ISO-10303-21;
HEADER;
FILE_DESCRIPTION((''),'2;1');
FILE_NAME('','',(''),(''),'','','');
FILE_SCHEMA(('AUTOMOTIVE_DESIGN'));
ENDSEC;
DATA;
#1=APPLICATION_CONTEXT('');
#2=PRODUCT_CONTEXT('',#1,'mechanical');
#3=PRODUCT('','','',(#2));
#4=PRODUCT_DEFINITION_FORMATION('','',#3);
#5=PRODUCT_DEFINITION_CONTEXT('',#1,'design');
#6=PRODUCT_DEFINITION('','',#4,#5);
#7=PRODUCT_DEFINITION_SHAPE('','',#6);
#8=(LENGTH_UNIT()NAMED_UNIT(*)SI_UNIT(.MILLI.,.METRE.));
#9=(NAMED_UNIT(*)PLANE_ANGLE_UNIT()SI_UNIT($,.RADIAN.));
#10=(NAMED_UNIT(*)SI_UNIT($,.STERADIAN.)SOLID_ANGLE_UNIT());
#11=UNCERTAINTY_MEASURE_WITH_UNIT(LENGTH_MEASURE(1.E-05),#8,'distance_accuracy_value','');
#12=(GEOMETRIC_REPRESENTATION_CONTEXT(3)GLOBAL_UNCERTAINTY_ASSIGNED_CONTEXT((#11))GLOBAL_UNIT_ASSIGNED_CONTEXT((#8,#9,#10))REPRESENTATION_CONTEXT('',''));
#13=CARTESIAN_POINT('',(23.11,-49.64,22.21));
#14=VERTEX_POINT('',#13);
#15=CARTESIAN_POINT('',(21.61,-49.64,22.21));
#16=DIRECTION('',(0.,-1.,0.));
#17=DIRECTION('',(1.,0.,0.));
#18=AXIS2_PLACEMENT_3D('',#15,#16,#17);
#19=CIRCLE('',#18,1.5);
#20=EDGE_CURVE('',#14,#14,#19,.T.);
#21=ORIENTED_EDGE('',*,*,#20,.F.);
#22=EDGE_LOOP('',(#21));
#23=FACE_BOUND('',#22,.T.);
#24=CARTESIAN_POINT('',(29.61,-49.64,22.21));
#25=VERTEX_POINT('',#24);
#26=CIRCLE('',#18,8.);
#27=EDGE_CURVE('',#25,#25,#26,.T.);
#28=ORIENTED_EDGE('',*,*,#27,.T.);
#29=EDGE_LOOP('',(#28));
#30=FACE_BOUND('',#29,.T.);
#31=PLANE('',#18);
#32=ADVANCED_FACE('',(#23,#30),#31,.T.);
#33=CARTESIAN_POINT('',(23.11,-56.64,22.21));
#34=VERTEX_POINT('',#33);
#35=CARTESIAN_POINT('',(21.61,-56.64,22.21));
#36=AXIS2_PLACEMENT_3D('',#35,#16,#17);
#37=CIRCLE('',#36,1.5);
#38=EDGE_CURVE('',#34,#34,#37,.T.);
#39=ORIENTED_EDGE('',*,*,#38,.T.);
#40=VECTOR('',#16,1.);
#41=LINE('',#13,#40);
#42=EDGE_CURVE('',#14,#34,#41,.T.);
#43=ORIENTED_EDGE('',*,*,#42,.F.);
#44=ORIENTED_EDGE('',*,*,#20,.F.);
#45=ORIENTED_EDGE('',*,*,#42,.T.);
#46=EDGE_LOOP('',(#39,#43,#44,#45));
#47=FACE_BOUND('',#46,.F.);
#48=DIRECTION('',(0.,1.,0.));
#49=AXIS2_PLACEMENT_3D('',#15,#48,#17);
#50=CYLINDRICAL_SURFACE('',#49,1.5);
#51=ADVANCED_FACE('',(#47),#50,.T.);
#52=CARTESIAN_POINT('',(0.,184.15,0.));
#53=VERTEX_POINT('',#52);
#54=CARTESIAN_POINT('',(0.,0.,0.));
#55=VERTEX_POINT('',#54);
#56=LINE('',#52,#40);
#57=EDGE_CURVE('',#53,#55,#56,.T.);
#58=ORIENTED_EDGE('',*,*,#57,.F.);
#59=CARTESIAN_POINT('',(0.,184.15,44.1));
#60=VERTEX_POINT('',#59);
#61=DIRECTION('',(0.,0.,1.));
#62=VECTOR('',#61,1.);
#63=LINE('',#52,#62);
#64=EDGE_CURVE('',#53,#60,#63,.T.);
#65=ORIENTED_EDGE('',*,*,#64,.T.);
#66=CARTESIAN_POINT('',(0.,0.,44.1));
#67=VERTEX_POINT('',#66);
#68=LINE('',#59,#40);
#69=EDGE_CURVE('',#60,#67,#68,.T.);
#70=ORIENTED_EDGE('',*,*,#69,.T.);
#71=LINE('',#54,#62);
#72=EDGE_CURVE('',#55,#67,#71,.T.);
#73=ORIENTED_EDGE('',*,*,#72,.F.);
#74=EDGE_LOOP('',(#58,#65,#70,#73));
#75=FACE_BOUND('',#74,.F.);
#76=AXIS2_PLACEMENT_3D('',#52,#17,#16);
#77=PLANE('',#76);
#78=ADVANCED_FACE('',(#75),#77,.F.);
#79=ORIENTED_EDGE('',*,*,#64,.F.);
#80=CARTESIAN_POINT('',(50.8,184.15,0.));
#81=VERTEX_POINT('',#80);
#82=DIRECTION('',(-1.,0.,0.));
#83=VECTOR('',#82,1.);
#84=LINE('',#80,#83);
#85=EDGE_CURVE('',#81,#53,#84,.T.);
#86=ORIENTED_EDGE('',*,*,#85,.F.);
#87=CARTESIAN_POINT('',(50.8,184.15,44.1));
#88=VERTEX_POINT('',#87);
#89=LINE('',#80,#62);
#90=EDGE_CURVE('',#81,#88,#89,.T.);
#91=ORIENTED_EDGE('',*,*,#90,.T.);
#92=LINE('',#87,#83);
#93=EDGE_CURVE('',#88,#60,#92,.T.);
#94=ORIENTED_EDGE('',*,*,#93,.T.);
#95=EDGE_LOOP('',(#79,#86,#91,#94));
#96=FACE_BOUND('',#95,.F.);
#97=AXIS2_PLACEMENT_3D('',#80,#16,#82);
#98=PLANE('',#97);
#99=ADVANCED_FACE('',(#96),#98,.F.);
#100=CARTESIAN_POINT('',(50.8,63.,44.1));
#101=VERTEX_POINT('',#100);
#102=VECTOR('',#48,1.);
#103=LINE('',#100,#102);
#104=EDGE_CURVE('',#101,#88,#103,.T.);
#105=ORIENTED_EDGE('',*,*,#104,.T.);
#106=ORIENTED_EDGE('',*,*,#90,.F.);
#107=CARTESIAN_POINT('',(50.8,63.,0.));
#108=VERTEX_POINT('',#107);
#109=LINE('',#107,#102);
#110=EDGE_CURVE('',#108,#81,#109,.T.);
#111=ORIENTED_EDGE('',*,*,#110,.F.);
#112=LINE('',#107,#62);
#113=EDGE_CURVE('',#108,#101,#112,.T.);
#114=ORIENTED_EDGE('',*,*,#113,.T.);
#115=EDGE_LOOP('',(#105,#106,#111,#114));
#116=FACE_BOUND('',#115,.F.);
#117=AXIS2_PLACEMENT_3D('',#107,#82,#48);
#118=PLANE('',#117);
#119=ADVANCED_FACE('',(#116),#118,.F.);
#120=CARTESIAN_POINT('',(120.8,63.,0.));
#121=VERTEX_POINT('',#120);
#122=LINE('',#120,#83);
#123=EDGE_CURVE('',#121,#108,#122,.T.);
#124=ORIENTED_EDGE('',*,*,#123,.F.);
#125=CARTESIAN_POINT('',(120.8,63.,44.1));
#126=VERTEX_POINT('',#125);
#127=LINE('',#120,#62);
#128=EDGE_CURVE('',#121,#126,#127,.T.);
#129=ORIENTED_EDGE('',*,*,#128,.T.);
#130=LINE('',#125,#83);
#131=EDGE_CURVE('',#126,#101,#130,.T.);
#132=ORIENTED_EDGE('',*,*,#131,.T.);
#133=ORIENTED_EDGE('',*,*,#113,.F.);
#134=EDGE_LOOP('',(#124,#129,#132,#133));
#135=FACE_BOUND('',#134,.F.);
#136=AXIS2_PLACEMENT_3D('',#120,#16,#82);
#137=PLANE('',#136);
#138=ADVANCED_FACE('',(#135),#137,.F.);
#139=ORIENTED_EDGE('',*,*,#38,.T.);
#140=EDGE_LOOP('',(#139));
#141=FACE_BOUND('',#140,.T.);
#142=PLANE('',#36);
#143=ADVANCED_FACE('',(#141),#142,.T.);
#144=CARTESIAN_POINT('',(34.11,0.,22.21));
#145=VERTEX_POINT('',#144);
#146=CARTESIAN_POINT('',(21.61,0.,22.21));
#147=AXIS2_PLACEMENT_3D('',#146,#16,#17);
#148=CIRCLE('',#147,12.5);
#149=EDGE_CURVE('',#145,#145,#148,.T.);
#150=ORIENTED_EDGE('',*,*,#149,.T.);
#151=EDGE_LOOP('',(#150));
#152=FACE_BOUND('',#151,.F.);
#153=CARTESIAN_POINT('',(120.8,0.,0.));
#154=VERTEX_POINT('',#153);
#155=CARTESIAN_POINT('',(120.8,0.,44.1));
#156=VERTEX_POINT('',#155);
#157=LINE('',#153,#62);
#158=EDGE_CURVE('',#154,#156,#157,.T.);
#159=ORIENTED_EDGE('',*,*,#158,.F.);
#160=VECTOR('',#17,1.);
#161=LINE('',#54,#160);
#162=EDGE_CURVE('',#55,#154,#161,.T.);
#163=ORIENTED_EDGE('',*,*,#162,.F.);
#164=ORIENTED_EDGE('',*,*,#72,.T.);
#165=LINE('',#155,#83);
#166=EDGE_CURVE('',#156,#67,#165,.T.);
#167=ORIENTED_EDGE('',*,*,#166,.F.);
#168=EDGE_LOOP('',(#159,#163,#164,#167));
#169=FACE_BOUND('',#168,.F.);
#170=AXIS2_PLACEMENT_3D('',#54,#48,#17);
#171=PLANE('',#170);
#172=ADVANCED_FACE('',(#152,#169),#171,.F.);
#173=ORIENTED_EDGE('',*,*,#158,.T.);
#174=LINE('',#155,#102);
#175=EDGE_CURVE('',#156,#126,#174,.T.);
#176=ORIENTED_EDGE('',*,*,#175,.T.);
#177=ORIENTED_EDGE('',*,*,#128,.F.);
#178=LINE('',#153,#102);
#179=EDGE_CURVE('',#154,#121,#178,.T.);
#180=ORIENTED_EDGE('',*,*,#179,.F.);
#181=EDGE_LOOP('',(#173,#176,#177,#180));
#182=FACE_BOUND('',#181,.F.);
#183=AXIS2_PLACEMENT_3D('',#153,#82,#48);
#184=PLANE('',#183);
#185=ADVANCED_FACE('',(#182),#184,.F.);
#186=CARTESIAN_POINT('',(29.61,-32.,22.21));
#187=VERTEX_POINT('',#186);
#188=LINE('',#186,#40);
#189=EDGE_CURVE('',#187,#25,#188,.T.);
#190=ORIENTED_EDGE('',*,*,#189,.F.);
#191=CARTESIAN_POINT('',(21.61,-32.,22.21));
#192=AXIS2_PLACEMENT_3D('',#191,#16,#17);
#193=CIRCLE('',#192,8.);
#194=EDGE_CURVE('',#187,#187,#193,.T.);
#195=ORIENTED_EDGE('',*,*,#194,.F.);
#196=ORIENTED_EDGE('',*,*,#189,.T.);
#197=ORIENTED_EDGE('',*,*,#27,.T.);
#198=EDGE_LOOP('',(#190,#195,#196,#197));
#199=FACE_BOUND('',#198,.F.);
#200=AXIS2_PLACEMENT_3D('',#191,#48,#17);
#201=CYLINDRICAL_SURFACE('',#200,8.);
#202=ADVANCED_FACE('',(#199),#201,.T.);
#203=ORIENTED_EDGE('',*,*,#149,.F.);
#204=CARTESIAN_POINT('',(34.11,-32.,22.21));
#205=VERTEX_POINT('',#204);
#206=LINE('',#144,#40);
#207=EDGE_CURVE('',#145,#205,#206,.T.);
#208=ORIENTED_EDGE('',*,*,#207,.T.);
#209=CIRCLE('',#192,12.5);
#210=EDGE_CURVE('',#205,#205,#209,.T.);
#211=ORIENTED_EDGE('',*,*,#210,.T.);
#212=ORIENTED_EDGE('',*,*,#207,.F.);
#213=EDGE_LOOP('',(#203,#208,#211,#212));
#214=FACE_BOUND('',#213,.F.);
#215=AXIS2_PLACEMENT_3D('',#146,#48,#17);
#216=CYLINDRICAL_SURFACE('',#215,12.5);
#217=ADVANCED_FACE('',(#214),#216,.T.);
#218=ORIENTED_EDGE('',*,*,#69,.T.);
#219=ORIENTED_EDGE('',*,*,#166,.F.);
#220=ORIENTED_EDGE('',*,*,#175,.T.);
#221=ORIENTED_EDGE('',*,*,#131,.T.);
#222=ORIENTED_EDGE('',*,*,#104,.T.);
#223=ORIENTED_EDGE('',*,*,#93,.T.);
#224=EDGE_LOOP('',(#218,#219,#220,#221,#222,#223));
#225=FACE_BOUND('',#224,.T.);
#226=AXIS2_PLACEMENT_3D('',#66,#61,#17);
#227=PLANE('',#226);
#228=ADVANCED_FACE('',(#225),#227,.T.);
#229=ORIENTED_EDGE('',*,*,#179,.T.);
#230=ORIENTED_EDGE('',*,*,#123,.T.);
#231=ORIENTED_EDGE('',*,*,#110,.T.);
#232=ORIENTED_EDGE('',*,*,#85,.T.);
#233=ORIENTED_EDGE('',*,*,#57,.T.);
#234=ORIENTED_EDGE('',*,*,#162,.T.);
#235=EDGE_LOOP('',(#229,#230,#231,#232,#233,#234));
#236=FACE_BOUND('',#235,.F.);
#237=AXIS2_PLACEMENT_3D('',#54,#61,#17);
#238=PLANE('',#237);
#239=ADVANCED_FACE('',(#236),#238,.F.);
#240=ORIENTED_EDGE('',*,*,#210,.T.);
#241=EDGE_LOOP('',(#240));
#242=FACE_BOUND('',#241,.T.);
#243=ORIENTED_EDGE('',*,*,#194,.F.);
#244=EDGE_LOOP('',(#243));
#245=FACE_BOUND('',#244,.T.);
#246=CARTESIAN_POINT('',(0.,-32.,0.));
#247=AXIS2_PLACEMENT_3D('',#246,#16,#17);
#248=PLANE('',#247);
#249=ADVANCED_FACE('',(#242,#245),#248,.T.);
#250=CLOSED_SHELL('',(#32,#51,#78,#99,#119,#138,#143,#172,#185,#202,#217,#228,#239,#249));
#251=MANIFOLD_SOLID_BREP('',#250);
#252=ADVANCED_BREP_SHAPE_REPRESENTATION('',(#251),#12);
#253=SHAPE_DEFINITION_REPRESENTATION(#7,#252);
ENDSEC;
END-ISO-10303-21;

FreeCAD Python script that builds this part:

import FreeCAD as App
import Part
import Sketcher

V = App.Vector
Q = App.Units.Quantity


def add_polygon(sketch, points):
    """Adds a closed chain of lines whose ends are joined by coincident constraints."""
    first, n = sketch.GeometryCount, len(points)
    for a, b in zip(points, points[1:] + points[:1]):
        sketch.addGeometry(Part.LineSegment(App.Vector(*a, 0), App.Vector(*b, 0)), False)
    for i in range(n):
        sketch.addConstraint(Sketcher.Constraint("Coincident", first + i, 2, first + (i + 1) % n, 1))

doc = App.newDocument("Part")
body = doc.addObject("PartDesign::Body", "Body")

sketch1 = body.newObject("Sketcher::SketchObject", "Sketch")
sketch1.AttachmentSupport = (doc.getObject("XY_Plane"), [""])
sketch1.MapMode = "FlatFace"
add_polygon(sketch1, [(0, 184), (0, 0), (121, 0), (121, 63), (51, 63), (51, 184)])
sketch1.addConstraint([
    Sketcher.Constraint("Vertical", 0),
    Sketcher.Constraint("Horizontal", 1),
    Sketcher.Constraint("Vertical", 2),
    Sketcher.Constraint("Horizontal", 3),
    Sketcher.Constraint("Vertical", 4),
    Sketcher.Constraint("Horizontal", 5),
    Sketcher.Constraint("Coincident", 0, 2, -1, 1),
    Sketcher.Constraint("DistanceX", 3, 2, 3, 1, Q("70 mm")),
    Sketcher.Constraint("DistanceY", 2, 1, 2, 2, Q("63 mm")),
    Sketcher.Constraint("DistanceX", 5, 2, 5, 1, Q("50.8 mm")),
    Sketcher.Constraint("DistanceY", 0, 2, 0, 1, Q("184.15 mm")),
])
pad1 = body.newObject("PartDesign::Pad", "Pad")
pad1.Profile = sketch1
pad1.Length = 44.1

sketch2 = body.newObject("Sketcher::SketchObject", "Sketch001")
sketch2.AttachmentSupport = (doc.getObject("XZ_Plane"), [""])
sketch2.MapMode = "FlatFace"
sketch2.addGeometry(Part.Circle(V(22, 22, 0), V(0, 0, 1), 12), False)
sketch2.addConstraint([
    Sketcher.Constraint("Diameter", 0, Q("25 mm")),
    Sketcher.Constraint("DistanceX", -1, 1, 0, 3, Q("21.61 mm")),
    Sketcher.Constraint("DistanceY", -1, 1, 0, 3, Q("22.21 mm")),
])
pad2 = body.newObject("PartDesign::Pad", "Pad001")
pad2.Profile = sketch2
pad2.Length = 32

sketch3 = body.newObject("Sketcher::SketchObject", "Sketch002")
sketch3.AttachmentSupport = (doc.getObject("XZ_Plane"), [""])
sketch3.MapMode = "FlatFace"
sketch3.AttachmentOffset = App.Placement(V(0, 0, 32), App.Rotation())
sketch3.addGeometry(Part.Circle(V(22, 22, 0), V(0, 0, 1), 8), False)
sketch3.addConstraint([
    Sketcher.Constraint("Diameter", 0, Q("16 mm")),
    Sketcher.Constraint("DistanceX", -1, 1, 0, 3, Q("21.61 mm")),
    Sketcher.Constraint("DistanceY", -1, 1, 0, 3, Q("22.21 mm")),
])
pad3 = body.newObject("PartDesign::Pad", "Pad002")
pad3.Profile = sketch3
pad3.Length = 17.64

sketch4 = body.newObject("Sketcher::SketchObject", "Sketch003")
sketch4.AttachmentSupport = (doc.getObject("XZ_Plane"), [""])
sketch4.MapMode = "FlatFace"
sketch4.AttachmentOffset = App.Placement(V(0, 0, 49.64), App.Rotation())
sketch4.addGeometry(Part.Circle(V(21.6, 22.2, 0), V(0, 0, 1), 1.5), False)
sketch4.addConstraint([
    Sketcher.Constraint("Diameter", 0, Q("3 mm")),
    Sketcher.Constraint("DistanceX", -1, 1, 0, 3, Q("21.61 mm")),
    Sketcher.Constraint("DistanceY", -1, 1, 0, 3, Q("22.21 mm")),
])
pad4 = body.newObject("PartDesign::Pad", "Pad003")
pad4.Profile = sketch4
pad4.Length = 7

doc.recompute()
